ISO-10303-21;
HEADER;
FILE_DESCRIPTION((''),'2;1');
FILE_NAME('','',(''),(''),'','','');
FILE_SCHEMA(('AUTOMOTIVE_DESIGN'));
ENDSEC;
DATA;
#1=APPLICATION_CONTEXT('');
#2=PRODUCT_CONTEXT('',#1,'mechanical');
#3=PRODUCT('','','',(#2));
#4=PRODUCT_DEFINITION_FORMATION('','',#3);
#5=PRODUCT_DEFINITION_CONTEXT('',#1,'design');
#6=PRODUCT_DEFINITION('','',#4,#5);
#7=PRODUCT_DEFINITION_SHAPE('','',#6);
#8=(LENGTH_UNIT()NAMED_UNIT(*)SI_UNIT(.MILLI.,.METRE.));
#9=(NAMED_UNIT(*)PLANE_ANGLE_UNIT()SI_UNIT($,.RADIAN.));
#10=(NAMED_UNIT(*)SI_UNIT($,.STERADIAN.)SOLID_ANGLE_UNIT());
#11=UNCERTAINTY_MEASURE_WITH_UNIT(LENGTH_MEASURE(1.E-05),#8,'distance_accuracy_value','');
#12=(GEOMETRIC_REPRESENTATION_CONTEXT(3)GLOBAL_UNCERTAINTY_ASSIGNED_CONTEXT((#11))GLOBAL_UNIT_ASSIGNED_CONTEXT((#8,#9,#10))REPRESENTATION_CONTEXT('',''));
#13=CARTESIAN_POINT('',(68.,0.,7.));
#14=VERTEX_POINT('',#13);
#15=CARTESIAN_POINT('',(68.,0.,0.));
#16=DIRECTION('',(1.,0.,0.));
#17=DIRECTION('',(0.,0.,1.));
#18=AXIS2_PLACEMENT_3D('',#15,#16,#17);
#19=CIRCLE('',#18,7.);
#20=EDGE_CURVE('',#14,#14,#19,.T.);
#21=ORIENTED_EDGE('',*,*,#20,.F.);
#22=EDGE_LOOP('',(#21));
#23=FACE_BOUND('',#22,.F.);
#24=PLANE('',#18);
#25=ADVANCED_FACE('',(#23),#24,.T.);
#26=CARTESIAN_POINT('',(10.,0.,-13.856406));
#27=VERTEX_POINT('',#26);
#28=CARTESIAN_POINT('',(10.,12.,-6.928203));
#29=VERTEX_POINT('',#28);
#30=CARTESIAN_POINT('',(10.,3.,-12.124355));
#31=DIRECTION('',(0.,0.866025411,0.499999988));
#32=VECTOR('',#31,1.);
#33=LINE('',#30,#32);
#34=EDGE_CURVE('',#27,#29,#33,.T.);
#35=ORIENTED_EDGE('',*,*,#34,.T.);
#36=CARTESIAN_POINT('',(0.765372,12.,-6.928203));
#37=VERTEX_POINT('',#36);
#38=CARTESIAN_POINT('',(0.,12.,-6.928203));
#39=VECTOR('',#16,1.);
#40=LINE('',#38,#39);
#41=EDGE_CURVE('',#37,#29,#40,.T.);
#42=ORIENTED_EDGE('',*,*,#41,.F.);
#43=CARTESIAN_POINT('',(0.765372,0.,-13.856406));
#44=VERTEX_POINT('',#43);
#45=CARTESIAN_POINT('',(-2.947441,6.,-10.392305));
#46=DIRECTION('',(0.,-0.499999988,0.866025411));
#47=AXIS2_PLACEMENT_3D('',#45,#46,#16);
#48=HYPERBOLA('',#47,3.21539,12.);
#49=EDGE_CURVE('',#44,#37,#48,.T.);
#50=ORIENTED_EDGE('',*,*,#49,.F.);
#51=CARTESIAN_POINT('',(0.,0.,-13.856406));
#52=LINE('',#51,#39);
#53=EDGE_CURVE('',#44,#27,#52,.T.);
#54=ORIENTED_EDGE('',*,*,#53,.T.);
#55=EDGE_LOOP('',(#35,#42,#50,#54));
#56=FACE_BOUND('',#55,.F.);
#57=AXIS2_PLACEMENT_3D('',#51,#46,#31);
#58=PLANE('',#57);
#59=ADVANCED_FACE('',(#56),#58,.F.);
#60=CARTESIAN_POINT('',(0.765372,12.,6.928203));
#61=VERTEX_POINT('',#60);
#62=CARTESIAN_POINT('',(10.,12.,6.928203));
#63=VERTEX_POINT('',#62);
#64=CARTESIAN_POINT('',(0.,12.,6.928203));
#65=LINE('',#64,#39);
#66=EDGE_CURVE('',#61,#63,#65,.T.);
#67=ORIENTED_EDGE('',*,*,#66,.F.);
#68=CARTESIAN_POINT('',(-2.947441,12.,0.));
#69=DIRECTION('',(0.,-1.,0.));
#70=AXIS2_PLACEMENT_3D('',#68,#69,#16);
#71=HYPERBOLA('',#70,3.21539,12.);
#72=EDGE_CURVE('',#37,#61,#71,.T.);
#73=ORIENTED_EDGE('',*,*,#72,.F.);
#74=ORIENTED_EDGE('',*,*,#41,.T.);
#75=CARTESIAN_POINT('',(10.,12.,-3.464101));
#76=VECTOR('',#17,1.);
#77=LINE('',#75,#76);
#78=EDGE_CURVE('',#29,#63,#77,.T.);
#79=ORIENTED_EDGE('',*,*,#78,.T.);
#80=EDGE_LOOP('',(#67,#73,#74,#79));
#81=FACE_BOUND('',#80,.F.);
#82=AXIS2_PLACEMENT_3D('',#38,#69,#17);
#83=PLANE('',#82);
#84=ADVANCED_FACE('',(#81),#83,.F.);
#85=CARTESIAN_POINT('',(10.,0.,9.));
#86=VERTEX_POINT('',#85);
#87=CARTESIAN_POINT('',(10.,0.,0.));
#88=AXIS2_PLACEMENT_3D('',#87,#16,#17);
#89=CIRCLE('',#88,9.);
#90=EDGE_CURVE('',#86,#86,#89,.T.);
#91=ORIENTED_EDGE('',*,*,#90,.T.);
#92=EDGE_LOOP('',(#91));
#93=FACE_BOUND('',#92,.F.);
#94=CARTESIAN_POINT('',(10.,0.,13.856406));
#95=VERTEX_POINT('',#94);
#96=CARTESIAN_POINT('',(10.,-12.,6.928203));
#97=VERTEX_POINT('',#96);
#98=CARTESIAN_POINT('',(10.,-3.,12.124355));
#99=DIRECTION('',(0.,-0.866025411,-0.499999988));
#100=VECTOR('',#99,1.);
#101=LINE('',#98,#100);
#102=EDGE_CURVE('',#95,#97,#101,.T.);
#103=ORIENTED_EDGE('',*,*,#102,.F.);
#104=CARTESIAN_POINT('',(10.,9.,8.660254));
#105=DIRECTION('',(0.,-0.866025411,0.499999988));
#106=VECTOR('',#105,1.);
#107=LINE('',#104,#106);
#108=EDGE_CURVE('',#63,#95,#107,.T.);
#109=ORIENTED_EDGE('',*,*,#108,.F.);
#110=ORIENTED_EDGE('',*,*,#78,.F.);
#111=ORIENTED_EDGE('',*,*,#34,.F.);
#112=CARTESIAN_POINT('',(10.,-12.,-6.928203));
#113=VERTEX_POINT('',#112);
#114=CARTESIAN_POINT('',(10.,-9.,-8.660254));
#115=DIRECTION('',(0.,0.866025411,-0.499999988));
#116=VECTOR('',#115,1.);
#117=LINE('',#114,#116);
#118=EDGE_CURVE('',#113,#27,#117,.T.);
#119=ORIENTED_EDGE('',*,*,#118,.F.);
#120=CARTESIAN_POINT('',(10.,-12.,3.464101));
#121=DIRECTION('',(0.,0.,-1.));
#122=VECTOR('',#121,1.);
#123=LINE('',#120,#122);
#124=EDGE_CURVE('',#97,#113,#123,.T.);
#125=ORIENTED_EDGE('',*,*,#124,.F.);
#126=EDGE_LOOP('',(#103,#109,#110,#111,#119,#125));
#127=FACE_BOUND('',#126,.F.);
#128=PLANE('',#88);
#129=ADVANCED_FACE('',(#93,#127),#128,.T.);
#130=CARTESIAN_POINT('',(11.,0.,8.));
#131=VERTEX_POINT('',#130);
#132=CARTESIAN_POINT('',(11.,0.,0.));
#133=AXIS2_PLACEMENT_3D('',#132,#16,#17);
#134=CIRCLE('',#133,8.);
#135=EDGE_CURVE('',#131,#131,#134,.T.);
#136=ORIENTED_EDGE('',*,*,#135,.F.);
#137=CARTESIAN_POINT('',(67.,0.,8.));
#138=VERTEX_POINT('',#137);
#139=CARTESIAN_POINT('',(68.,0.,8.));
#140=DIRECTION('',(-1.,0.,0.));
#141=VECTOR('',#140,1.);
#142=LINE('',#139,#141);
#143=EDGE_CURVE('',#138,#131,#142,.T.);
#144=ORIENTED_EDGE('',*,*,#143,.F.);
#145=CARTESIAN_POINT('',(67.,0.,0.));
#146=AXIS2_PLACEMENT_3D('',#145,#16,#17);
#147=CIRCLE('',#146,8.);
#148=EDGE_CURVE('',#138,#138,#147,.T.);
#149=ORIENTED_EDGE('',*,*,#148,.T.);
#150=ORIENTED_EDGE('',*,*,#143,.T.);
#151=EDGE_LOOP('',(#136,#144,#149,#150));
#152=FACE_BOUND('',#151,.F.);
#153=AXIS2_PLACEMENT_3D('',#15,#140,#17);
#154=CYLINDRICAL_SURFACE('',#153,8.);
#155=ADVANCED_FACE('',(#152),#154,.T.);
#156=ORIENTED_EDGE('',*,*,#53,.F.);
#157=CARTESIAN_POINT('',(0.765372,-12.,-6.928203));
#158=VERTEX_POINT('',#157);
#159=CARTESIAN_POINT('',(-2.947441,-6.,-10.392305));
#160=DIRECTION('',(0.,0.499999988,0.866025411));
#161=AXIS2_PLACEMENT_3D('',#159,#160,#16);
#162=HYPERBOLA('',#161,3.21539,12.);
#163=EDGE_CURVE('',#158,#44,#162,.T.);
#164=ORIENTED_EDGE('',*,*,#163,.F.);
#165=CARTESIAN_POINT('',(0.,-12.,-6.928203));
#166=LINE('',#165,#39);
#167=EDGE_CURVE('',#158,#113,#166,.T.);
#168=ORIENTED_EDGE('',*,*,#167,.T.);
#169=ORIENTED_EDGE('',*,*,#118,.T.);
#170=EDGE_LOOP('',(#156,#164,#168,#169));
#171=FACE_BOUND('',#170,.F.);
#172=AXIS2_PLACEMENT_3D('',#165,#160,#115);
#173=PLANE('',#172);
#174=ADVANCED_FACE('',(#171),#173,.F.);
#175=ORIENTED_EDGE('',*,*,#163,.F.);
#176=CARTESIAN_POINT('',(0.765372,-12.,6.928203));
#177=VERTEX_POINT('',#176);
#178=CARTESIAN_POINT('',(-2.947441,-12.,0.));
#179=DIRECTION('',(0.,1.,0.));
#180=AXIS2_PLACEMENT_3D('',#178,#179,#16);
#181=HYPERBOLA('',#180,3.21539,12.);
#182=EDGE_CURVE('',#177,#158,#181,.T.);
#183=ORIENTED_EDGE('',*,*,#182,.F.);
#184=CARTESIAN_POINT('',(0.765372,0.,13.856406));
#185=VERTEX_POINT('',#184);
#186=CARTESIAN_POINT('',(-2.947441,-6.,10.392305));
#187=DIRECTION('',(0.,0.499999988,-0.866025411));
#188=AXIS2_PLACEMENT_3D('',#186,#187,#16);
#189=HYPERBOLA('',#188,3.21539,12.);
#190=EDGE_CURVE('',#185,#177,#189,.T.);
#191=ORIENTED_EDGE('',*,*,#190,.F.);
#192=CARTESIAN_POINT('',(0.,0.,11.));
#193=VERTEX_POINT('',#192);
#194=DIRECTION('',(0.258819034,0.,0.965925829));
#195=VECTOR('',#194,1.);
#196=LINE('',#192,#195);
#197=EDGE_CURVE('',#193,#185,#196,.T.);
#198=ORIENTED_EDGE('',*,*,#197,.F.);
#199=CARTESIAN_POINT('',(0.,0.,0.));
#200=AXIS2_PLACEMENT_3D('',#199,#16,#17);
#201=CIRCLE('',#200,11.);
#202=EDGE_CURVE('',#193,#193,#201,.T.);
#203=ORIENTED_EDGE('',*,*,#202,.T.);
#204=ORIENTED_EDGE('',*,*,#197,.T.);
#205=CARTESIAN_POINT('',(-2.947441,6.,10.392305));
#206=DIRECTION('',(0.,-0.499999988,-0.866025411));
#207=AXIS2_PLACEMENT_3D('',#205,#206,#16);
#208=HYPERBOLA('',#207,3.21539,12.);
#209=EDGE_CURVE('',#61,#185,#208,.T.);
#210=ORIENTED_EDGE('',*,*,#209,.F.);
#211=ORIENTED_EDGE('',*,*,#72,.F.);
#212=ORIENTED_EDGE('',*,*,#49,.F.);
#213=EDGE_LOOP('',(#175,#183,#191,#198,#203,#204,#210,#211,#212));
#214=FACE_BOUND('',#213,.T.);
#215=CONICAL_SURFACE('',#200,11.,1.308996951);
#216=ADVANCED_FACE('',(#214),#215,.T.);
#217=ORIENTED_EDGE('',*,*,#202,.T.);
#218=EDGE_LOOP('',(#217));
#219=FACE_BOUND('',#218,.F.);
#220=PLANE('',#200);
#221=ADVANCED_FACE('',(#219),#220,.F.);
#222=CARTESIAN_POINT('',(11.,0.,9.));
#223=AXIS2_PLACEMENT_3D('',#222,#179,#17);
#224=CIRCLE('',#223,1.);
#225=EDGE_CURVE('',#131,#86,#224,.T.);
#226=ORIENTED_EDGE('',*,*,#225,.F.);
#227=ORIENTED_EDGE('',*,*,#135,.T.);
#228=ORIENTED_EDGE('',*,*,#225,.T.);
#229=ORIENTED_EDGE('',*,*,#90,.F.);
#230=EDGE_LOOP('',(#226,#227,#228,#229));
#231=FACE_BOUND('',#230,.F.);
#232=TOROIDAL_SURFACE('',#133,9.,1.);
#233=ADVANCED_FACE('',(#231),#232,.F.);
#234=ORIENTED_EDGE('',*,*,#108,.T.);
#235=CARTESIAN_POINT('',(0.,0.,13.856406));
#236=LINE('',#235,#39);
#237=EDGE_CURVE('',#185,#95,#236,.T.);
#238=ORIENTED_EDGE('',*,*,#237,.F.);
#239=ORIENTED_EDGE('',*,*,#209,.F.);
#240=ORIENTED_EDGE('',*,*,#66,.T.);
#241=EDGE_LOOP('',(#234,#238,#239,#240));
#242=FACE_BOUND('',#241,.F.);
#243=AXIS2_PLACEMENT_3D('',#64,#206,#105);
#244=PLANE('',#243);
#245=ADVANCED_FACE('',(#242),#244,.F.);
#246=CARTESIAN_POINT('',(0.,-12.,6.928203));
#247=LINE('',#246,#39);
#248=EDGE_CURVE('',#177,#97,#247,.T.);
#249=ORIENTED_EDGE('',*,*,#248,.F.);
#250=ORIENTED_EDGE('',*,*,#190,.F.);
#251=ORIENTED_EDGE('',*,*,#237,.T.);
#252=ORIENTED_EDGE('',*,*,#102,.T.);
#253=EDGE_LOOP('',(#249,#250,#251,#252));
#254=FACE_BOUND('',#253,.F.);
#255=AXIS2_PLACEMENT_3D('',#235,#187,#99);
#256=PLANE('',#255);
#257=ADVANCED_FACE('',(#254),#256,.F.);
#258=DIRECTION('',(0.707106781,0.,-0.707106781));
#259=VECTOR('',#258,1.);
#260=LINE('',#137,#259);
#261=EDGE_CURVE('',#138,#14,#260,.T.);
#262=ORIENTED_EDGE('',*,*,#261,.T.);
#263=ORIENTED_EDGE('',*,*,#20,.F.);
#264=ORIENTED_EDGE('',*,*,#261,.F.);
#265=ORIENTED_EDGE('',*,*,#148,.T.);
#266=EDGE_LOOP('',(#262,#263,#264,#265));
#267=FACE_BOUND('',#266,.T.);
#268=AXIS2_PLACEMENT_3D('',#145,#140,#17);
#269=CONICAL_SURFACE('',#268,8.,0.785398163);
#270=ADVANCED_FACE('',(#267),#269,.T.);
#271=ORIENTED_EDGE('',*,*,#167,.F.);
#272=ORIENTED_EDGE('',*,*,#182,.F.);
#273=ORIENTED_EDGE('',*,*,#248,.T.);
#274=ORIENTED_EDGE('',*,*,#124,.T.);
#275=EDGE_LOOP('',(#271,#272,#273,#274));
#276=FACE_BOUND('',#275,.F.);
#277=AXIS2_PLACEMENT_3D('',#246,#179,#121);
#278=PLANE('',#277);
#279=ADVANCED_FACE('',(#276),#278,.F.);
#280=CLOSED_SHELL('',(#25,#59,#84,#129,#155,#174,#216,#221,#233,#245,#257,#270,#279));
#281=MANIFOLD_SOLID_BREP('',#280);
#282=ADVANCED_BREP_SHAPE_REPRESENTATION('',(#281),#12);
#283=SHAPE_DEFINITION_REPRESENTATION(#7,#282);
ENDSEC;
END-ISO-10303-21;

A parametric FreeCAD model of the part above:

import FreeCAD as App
import Part
import Sketcher
Q = App.Units.Quantity


def edges_at(feature, points):
    """Names of the edges that pass closest to the given points."""
    edges = feature.Shape.Edges
    near = lambda p: min(range(len(edges)), key=lambda i: edges[i].distToShape(Part.Vertex(*p))[0])
    return sorted({f"Edge{near(p) + 1}" for p in points})


def add_polygon(sketch, points):
    """Adds a closed chain of lines whose ends are joined by coincident constraints."""
    first, n = sketch.GeometryCount, len(points)
    for a, b in zip(points, points[1:] + points[:1]):
        sketch.addGeometry(Part.LineSegment(App.Vector(*a, 0), App.Vector(*b, 0)), False)
    for i in range(n):
        sketch.addConstraint(Sketcher.Constraint("Coincident", first + i, 2, first + (i + 1) % n, 1))

doc = App.newDocument("Part")
body = doc.addObject("PartDesign::Body", "Body")

# Sketch on XZ plane
sketch1 = body.newObject("Sketcher::SketchObject", "Sketch")
sketch1.AttachmentSupport = (doc.getObject("XZ_Plane"), [""])
sketch1.MapMode = "FlatFace"
add_polygon(sketch1, [(0, 14), (0, 0), (68, 0), (68, 8), (10, 8), (10, 14)])  # lines 0-5
sketch1.addConstraint([
    Sketcher.Constraint("Vertical", 0),
    Sketcher.Constraint("Horizontal", 1),
    Sketcher.Constraint("Vertical", 2),
    Sketcher.Constraint("Horizontal", 3),
    Sketcher.Constraint("Vertical", 4),
    Sketcher.Constraint("Horizontal", 5),
    Sketcher.Constraint("Coincident", 0, 2, -1, 1),
    Sketcher.Constraint("DistanceX", 1, 1, 1, 2, 68.0),
    Sketcher.Constraint("DistanceX", 3, 2, 3, 1, 58.0),
    Sketcher.Constraint("DistanceY", 0, 2, 0, 1, 14.0),
    Sketcher.Constraint("DistanceY", 2, 1, 2, 2, 8.0),
])
revolution = body.newObject("PartDesign::Revolution", "Revolution")
revolution.Profile = sketch1
revolution.ReferenceAxis = (sketch1, ["H_Axis"])
revolution.Angle = 360

# Sketch on YZ plane
sketch2 = body.newObject("Sketcher::SketchObject", "Sketch001")
sketch2.AttachmentSupport = (doc.getObject("YZ_Plane"), [""])
sketch2.MapMode = "FlatFace"
sketch2.addGeometry(Part.Circle(App.Vector(0, 0, 0), App.Vector(0, 0, 1), 14), False)  # 0
add_polygon(sketch2, [(12, -7), (12, 7), (0, 14), (-12, 7), (-12, -7), (0, -14)])  # lines 1-6
sketch2.addConstraint([
    Sketcher.Constraint("Vertical", 1),
    Sketcher.Constraint("Vertical", 4),
    Sketcher.Constraint("Coincident", 0, 3, -1, 1),
    Sketcher.Constraint("Symmetric", 1, 2, 4, 2, -1, 1),
    Sketcher.Constraint("Symmetric", 2, 2, 5, 2, -1, 1),
    Sketcher.Constraint("PointOnObject", 2, 2, -2),
    Sketcher.Constraint("Parallel", 3, 6),
    Sketcher.Constraint("Horizontal", 1, 2, 3, 2),
    Sketcher.Constraint("Diameter", 0, 28.0),
    Sketcher.Constraint("Angle", 2, Q("150.000001 deg")),
    Sketcher.Constraint("DistanceX", -1, 1, 1, 2, 12.0),
    Sketcher.Constraint("DistanceY", 1, 1, 1, 2, 13.856406),
])
pocket1 = body.newObject("PartDesign::Pocket", "Pocket")
pocket1.Profile = sketch2
pocket1.Length = 25
pocket1.Reversed = True
doc.recompute()

chamfer = body.newObject("PartDesign::Chamfer", "Chamfer")
chamfer.Base = (pocket1, edges_at(pocket1, [(68, 0, -8)]))
chamfer.Size = 1
doc.recompute()

fillet = body.newObject("PartDesign::Fillet", "Fillet")
fillet.Base = (chamfer, edges_at(chamfer, [(10, 0, -8)]))
fillet.Radius = 1

# Sketch on XZ plane
sketch3 = body.newObject("Sketcher::SketchObject", "Sketch002")
sketch3.AttachmentSupport = (doc.getObject("XZ_Plane"), [""])
sketch3.MapMode = "FlatFace"
add_polygon(sketch3, [(0, 26.7), (0, 11), (4.2, 26.7)])  # lines 0-2
sketch3.addConstraint([
    Sketcher.Constraint("Vertical", 0),
    Sketcher.Constraint("Horizontal", 2),
    Sketcher.Constraint("PointOnObject", 0, 2, -2),
    Sketcher.Constraint("Angle", 1, Q("75.000001 deg")),
    Sketcher.Constraint("DistanceY", -1, 1, 0, 2, 11.0),
    Sketcher.Constraint("DistanceX", 2, 2, 2, 1, 4.210551),
])
groove = body.newObject("PartDesign::Groove", "Groove")
groove.Profile = sketch3
groove.ReferenceAxis = (sketch3, ["H_Axis"])
groove.Angle = 360

doc.recompute()
